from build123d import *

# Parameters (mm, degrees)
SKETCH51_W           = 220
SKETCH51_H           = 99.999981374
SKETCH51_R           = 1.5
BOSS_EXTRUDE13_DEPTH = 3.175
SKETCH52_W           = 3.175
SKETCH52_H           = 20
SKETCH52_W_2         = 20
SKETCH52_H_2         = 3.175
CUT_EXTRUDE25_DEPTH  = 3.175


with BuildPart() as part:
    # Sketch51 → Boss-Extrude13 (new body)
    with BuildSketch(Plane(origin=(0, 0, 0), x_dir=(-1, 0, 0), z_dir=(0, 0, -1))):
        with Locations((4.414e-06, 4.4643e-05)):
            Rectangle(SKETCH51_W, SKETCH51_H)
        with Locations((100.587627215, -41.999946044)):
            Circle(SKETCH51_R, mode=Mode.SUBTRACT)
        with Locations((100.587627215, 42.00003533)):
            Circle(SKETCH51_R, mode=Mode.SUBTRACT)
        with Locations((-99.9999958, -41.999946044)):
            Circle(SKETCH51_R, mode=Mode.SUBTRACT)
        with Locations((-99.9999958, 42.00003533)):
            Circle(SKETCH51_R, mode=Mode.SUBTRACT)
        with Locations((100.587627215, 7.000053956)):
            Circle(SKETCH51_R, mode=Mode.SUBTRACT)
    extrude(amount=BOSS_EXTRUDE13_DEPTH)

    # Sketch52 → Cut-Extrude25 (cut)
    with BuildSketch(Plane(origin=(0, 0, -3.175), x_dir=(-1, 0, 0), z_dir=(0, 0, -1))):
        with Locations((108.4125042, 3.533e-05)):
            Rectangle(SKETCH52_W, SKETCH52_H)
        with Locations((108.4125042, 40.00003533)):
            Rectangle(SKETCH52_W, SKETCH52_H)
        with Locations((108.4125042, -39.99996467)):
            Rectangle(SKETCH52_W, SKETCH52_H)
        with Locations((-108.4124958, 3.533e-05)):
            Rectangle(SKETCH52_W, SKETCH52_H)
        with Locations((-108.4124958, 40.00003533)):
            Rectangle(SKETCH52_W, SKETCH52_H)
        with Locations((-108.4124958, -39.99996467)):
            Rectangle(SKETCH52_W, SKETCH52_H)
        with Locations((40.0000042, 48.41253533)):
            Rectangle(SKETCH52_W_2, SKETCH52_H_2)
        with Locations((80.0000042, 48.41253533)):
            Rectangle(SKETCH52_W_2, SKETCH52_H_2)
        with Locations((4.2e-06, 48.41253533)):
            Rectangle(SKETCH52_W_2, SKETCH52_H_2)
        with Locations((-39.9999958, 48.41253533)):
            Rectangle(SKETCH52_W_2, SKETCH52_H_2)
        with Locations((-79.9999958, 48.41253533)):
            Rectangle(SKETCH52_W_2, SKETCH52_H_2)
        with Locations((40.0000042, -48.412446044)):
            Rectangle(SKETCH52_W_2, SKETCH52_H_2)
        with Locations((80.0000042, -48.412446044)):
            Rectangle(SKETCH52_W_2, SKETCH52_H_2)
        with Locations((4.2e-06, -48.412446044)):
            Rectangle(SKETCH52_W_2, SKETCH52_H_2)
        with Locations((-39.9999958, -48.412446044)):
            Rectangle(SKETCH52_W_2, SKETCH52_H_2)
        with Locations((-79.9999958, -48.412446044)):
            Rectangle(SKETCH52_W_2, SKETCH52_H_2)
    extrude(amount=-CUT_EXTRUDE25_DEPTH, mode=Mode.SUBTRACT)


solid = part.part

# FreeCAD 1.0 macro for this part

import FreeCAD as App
import Part
import Sketcher
from FreeCAD import Vector
Q = App.Units.Quantity

doc = App.newDocument("Part")
params = doc.addObject("Spreadsheet::Sheet", "Params")
for row, (alias, value) in enumerate([
    ("sketch1_diameter", "3 mm"),
    ("sketch1_width", "220 mm"),
    ("pad1_length", "3.175 mm"),
    ("sketch2_width", "20 mm"),
    ("pocket1_length", "3.175 mm"),
], start=1):
    params.set(f"A{row}", alias)
    params.set(f"B{row}", "=" + value)
    params.setAlias(f"B{row}", alias)

body = doc.addObject("PartDesign::Body", "Body")

# Sketch on XY plane
sketch1 = doc.addObject("Sketcher::SketchObject", "Sketch")
body.addObject(sketch1)
sketch1.AttachmentSupport = (doc.XY_Plane, [""])
sketch1.MapMode = "FlatFace"
sketch1.addGeometry([
    Part.LineSegment(Vector(110, 50, 0), Vector(110, -50, 0)),  # 0
    Part.LineSegment(Vector(110, -50, 0), Vector(-110, -50, 0)),  # 1
    Part.LineSegment(Vector(-110, -50, 0), Vector(-110, 50, 0)),  # 2
    Part.LineSegment(Vector(-110, 50, 0), Vector(110, 50, 0)),  # 3
    Part.Circle(Vector(100, -42, 0), Vector(0, 0, 1), 1.5),  # 4
    Part.Circle(Vector(-100.6, -42, 0), Vector(0, 0, 1), 1.5),  # 5
    Part.Circle(Vector(100, 42, 0), Vector(0, 0, 1), 1.5),  # 6
    Part.Circle(Vector(-100.6, 7, 0), Vector(0, 0, 1), 1.5),  # 7
    Part.Circle(Vector(-100.6, 42, 0), Vector(0, 0, 1), 1.5),  # 8
], False)
sketch1.addConstraint([
    Sketcher.Constraint("Coincident", 0, 2, 1, 1),
    Sketcher.Constraint("Coincident", 1, 2, 2, 1),
    Sketcher.Constraint("Coincident", 2, 2, 3, 1),
    Sketcher.Constraint("Coincident", 3, 2, 0, 1),
    Sketcher.Constraint("Vertical", 0),
    Sketcher.Constraint("Horizontal", 1),
    Sketcher.Constraint("Vertical", 2),
    Sketcher.Constraint("Horizontal", 3),
    Sketcher.Constraint("Equal", 4, 5),
    Sketcher.Constraint("Equal", 5, 6),
    Sketcher.Constraint("Equal", 6, 7),
    Sketcher.Constraint("Equal", 7, 8),
    Sketcher.Constraint("Horizontal", 4, 3, 5, 3),
    Sketcher.Constraint("Horizontal", 6, 3, 8, 3),
    Sketcher.Constraint("Vertical", 4, 3, 6, 3),
    Sketcher.Constraint("Vertical", 5, 3, 7, 3),
    Sketcher.Constraint("Vertical", 7, 3, 8, 3),
    Sketcher.Constraint("Diameter", 4, Q("3 mm")),
    Sketcher.Constraint("DistanceX", 1, 2, 1, 1, Q("220 mm")),
    Sketcher.Constraint("DistanceY", 5, 3, 7, 3, Q("49 mm")),
    Sketcher.Constraint("DistanceX", 4, 3, 0, 2, Q("10 mm")),
    Sketcher.Constraint("DistanceY", 0, 2, 4, 3, Q("8 mm")),
    Sketcher.Constraint("DistanceY", 8, 3, 2, 2, Q("8 mm")),
    Sketcher.Constraint("DistanceY", 0, 2, 0, 1, Q("99.999981 mm")),
    Sketcher.Constraint("DistanceX", -1, 1, 4, 3, Q("99.999996 mm")),
    Sketcher.Constraint("DistanceY", 4, 3, -1, 1, Q("41.999946 mm")),
    Sketcher.Constraint("DistanceX", 5, 3, -1, 1, Q("100.587627 mm")),
])
sketch1.setExpression("Constraints[17]", "Params.sketch1_diameter")
sketch1.setExpression("Constraints[18]", "Params.sketch1_width")
pad1 = doc.addObject("PartDesign::Pad", "Pad")
body.addObject(pad1)
pad1.Profile = sketch1
pad1.setExpression("Length", "Params.pad1_length")
pad1.Reversed = True

# Sketch on XY plane
sketch2 = doc.addObject("Sketcher::SketchObject", "Sketch001")
body.addObject(sketch2)
sketch2.AttachmentSupport = (doc.XY_Plane, [""])
sketch2.MapMode = "FlatFace"
sketch2.AttachmentOffset = App.Placement(Vector(0, 0, -3.175), App.Rotation())
sketch2.addGeometry([
    Part.LineSegment(Vector(-106.8, 10, 0), Vector(-106.8, -10, 0)),  # 0
    Part.LineSegment(Vector(-106.8, -10, 0), Vector(-110, -10, 0)),  # 1
    Part.LineSegment(Vector(-110, -10, 0), Vector(-110, 10, 0)),  # 2
    Part.LineSegment(Vector(-110, 10, 0), Vector(-106.8, 10, 0)),  # 3
    Part.LineSegment(Vector(-106.8, 50, 0), Vector(-106.8, 30, 0)),  # 4
    Part.LineSegment(Vector(-106.8, 30, 0), Vector(-110, 30, 0)),  # 5
    Part.LineSegment(Vector(-110, 30, 0), Vector(-110, 50, 0)),  # 6
    Part.LineSegment(Vector(-110, 50, 0), Vector(-106.8, 50, 0)),  # 7
    Part.LineSegment(Vector(-106.8, -30, 0), Vector(-106.8, -50, 0)),  # 8
    Part.LineSegment(Vector(-106.8, -50, 0), Vector(-110, -50, 0)),  # 9
    Part.LineSegment(Vector(-110, -50, 0), Vector(-110, -30, 0)),  # 10
    Part.LineSegment(Vector(-110, -30, 0), Vector(-106.8, -30, 0)),  # 11
    Part.LineSegment(Vector(110, 10, 0), Vector(110, -10, 0)),  # 12
    Part.LineSegment(Vector(110, -10, 0), Vector(106.8, -10, 0)),  # 13
    Part.LineSegment(Vector(106.8, -10, 0), Vector(106.8, 10, 0)),  # 14
    Part.LineSegment(Vector(106.8, 10, 0), Vector(110, 10, 0)),  # 15
    Part.LineSegment(Vector(110, 50, 0), Vector(110, 30, 0)),  # 16
    Part.LineSegment(Vector(110, 30, 0), Vector(106.8, 30, 0)),  # 17
    Part.LineSegment(Vector(106.8, 30, 0), Vector(106.8, 50, 0)),  # 18
    Part.LineSegment(Vector(106.8, 50, 0), Vector(110, 50, 0)),  # 19
    Part.LineSegment(Vector(110, -30, 0), Vector(110, -50, 0)),  # 20
    Part.LineSegment(Vector(110, -50, 0), Vector(106.8, -50, 0)),  # 21
    Part.LineSegment(Vector(106.8, -50, 0), Vector(106.8, -30, 0)),  # 22
    Part.LineSegment(Vector(106.8, -30, 0), Vector(110, -30, 0)),  # 23
    Part.LineSegment(Vector(-30, 50, 0), Vector(-30, 46.8, 0)),  # 24
    Part.LineSegment(Vector(-30, 46.8, 0), Vector(-50, 46.8, 0)),  # 25
    Part.LineSegment(Vector(-50, 46.8, 0), Vector(-50, 50, 0)),  # 26
    Part.LineSegment(Vector(-50, 50, 0), Vector(-30, 50, 0)),  # 27
    Part.LineSegment(Vector(-70, 50, 0), Vector(-70, 46.8, 0)),  # 28
    Part.LineSegment(Vector(-70, 46.8, 0), Vector(-90, 46.8, 0)),  # 29
    Part.LineSegment(Vector(-90, 46.8, 0), Vector(-90, 50, 0)),  # 30
    Part.LineSegment(Vector(-90, 50, 0), Vector(-70, 50, 0)),  # 31
    Part.LineSegment(Vector(10, 50, 0), Vector(10, 46.8, 0)),  # 32
    Part.LineSegment(Vector(10, 46.8, 0), Vector(-10, 46.8, 0)),  # 33
    Part.LineSegment(Vector(-10, 46.8, 0), Vector(-10, 50, 0)),  # 34
    Part.LineSegment(Vector(-10, 50, 0), Vector(10, 50, 0)),  # 35
    Part.LineSegment(Vector(50, 50, 0), Vector(50, 46.8, 0)),  # 36
    Part.LineSegment(Vector(50, 46.8, 0), Vector(30, 46.8, 0)),  # 37
    Part.LineSegment(Vector(30, 46.8, 0), Vector(30, 50, 0)),  # 38
    Part.LineSegment(Vector(30, 50, 0), Vector(50, 50, 0)),  # 39
    Part.LineSegment(Vector(90, 50, 0), Vector(90, 46.8, 0)),  # 40
    Part.LineSegment(Vector(90, 46.8, 0), Vector(70, 46.8, 0)),  # 41
    Part.LineSegment(Vector(70, 46.8, 0), Vector(70, 50, 0)),  # 42
    Part.LineSegment(Vector(70, 50, 0), Vector(90, 50, 0)),  # 43
    Part.LineSegment(Vector(-30, -46.8, 0), Vector(-30, -50, 0)),  # 44
    Part.LineSegment(Vector(-30, -50, 0), Vector(-50, -50, 0)),  # 45
    Part.LineSegment(Vector(-50, -50, 0), Vector(-50, -46.8, 0)),  # 46
    Part.LineSegment(Vector(-50, -46.8, 0), Vector(-30, -46.8, 0)),  # 47
    Part.LineSegment(Vector(-70, -46.8, 0), Vector(-70, -50, 0)),  # 48
    Part.LineSegment(Vector(-70, -50, 0), Vector(-90, -50, 0)),  # 49
    Part.LineSegment(Vector(-90, -50, 0), Vector(-90, -46.8, 0)),  # 50
    Part.LineSegment(Vector(-90, -46.8, 0), Vector(-70, -46.8, 0)),  # 51
    Part.LineSegment(Vector(10, -46.8, 0), Vector(10, -50, 0)),  # 52
    Part.LineSegment(Vector(10, -50, 0), Vector(-10, -50, 0)),  # 53
    Part.LineSegment(Vector(-10, -50, 0), Vector(-10, -46.8, 0)),  # 54
    Part.LineSegment(Vector(-10, -46.8, 0), Vector(10, -46.8, 0)),  # 55
    Part.LineSegment(Vector(50, -46.8, 0), Vector(50, -50, 0)),  # 56
    Part.LineSegment(Vector(50, -50, 0), Vector(30, -50, 0)),  # 57
    Part.LineSegment(Vector(30, -50, 0), Vector(30, -46.8, 0)),  # 58
    Part.LineSegment(Vector(30, -46.8, 0), Vector(50, -46.8, 0)),  # 59
    Part.LineSegment(Vector(90, -46.8, 0), Vector(90, -50, 0)),  # 60
    Part.LineSegment(Vector(90, -50, 0), Vector(70, -50, 0)),  # 61
    Part.LineSegment(Vector(70, -50, 0), Vector(70, -46.8, 0)),  # 62
    Part.LineSegment(Vector(70, -46.8, 0), Vector(90, -46.8, 0)),  # 63
], False)
sketch2.addConstraint([
    Sketcher.Constraint("Coincident", 0, 2, 1, 1),
    Sketcher.Constraint("Coincident", 1, 2, 2, 1),
    Sketcher.Constraint("Coincident", 2, 2, 3, 1),
    Sketcher.Constraint("Coincident", 3, 2, 0, 1),
    Sketcher.Constraint("Coincident", 4, 2, 5, 1),
    Sketcher.Constraint("Coincident", 5, 2, 6, 1),
    Sketcher.Constraint("Coincident", 6, 2, 7, 1),
    Sketcher.Constraint("Coincident", 7, 2, 4, 1),
    Sketcher.Constraint("Coincident", 8, 2, 9, 1),
    Sketcher.Constraint("Coincident", 9, 2, 10, 1),
    Sketcher.Constraint("Coincident", 10, 2, 11, 1),
    Sketcher.Constraint("Coincident", 11, 2, 8, 1),
    Sketcher.Constraint("Coincident", 12, 2, 13, 1),
    Sketcher.Constraint("Coincident", 13, 2, 14, 1),
    Sketcher.Constraint("Coincident", 14, 2, 15, 1),
    Sketcher.Constraint("Coincident", 15, 2, 12, 1),
    Sketcher.Constraint("Coincident", 16, 2, 17, 1),
    Sketcher.Constraint("Coincident", 17, 2, 18, 1),
    Sketcher.Constraint("Coincident", 18, 2, 19, 1),
    Sketcher.Constraint("Coincident", 19, 2, 16, 1),
    Sketcher.Constraint("Coincident", 20, 2, 21, 1),
    Sketcher.Constraint("Coincident", 21, 2, 22, 1),
    Sketcher.Constraint("Coincident", 22, 2, 23, 1),
    Sketcher.Constraint("Coincident", 23, 2, 20, 1),
    Sketcher.Constraint("Coincident", 24, 2, 25, 1),
    Sketcher.Constraint("Coincident", 25, 2, 26, 1),
    Sketcher.Constraint("Coincident", 26, 2, 27, 1),
    Sketcher.Constraint("Coincident", 27, 2, 24, 1),
    Sketcher.Constraint("Coincident", 28, 2, 29, 1),
    Sketcher.Constraint("Coincident", 29, 2, 30, 1),
    Sketcher.Constraint("Coincident", 30, 2, 31, 1),
    Sketcher.Constraint("Coincident", 31, 2, 28, 1),
    Sketcher.Constraint("Coincident", 32, 2, 33, 1),
    Sketcher.Constraint("Coincident", 33, 2, 34, 1),
    Sketcher.Constraint("Coincident", 34, 2, 35, 1),
    Sketcher.Constraint("Coincident", 35, 2, 32, 1),
    Sketcher.Constraint("Coincident", 36, 2, 37, 1),
    Sketcher.Constraint("Coincident", 37, 2, 38, 1),
    Sketcher.Constraint("Coincident", 38, 2, 39, 1),
    Sketcher.Constraint("Coincident", 39, 2, 36, 1),
    Sketcher.Constraint("Coincident", 40, 2, 41, 1),
    Sketcher.Constraint("Coincident", 41, 2, 42, 1),
    Sketcher.Constraint("Coincident", 42, 2, 43, 1),
    Sketcher.Constraint("Coincident", 43, 2, 40, 1),
    Sketcher.Constraint("Coincident", 44, 2, 45, 1),
    Sketcher.Constraint("Coincident", 45, 2, 46, 1),
    Sketcher.Constraint("Coincident", 46, 2, 47, 1),
    Sketcher.Constraint("Coincident", 47, 2, 44, 1),
    Sketcher.Constraint("Coincident", 48, 2, 49, 1),
    Sketcher.Constraint("Coincident", 49, 2, 50, 1),
    Sketcher.Constraint("Coincident", 50, 2, 51, 1),
    Sketcher.Constraint("Coincident", 51, 2, 48, 1),
    Sketcher.Constraint("Coincident", 52, 2, 53, 1),
    Sketcher.Constraint("Coincident", 53, 2, 54, 1),
    Sketcher.Constraint("Coincident", 54, 2, 55, 1),
    Sketcher.Constraint("Coincident", 55, 2, 52, 1),
    Sketcher.Constraint("Coincident", 56, 2, 57, 1),
    Sketcher.Constraint("Coincident", 57, 2, 58, 1),
    Sketcher.Constraint("Coincident", 58, 2, 59, 1),
    Sketcher.Constraint("Coincident", 59, 2, 56, 1),
    Sketcher.Constraint("Coincident", 60, 2, 61, 1),
    Sketcher.Constraint("Coincident", 61, 2, 62, 1),
    Sketcher.Constraint("Coincident", 62, 2, 63, 1),
    Sketcher.Constraint("Coincident", 63, 2, 60, 1),
    Sketcher.Constraint("Vertical", 0),
    Sketcher.Constraint("Horizontal", 1),
    Sketcher.Constraint("Vertical", 2),
    Sketcher.Constraint("Horizontal", 3),
    Sketcher.Constraint("Vertical", 4),
    Sketcher.Constraint("Horizontal", 5),
    Sketcher.Constraint("Vertical", 6),
    Sketcher.Constraint("Horizontal", 7),
    Sketcher.Constraint("Vertical", 8),
    Sketcher.Constraint("Horizontal", 9),
    Sketcher.Constraint("Vertical", 10),
    Sketcher.Constraint("Horizontal", 11),
    Sketcher.Constraint("Vertical", 12),
    Sketcher.Constraint("Horizontal", 13),
    Sketcher.Constraint("Vertical", 14),
    Sketcher.Constraint("Horizontal", 15),
    Sketcher.Constraint("Vertical", 16),
    Sketcher.Constraint("Horizontal", 17),
    Sketcher.Constraint("Vertical", 18),
    Sketcher.Constraint("Horizontal", 19),
    Sketcher.Constraint("Vertical", 20),
    Sketcher.Constraint("Horizontal", 21),
    Sketcher.Constraint("Vertical", 22),
    Sketcher.Constraint("Horizontal", 23),
    Sketcher.Constraint("Vertical", 24),
    Sketcher.Constraint("Horizontal", 25),
    Sketcher.Constraint("Vertical", 26),
    Sketcher.Constraint("Horizontal", 27),
    Sketcher.Constraint("Vertical", 28),
    Sketcher.Constraint("Horizontal", 29),
    Sketcher.Constraint("Vertical", 30),
    Sketcher.Constraint("Horizontal", 31),
    Sketcher.Constraint("Vertical", 32),
    Sketcher.Constraint("Horizontal", 33),
    Sketcher.Constraint("Vertical", 34),
    Sketcher.Constraint("Horizontal", 35),
    Sketcher.Constraint("Vertical", 36),
    Sketcher.Constraint("Horizontal", 37),
    Sketcher.Constraint("Vertical", 38),
    Sketcher.Constraint("Horizontal", 39),
    Sketcher.Constraint("Vertical", 40),
    Sketcher.Constraint("Horizontal", 41),
    Sketcher.Constraint("Vertical", 42),
    Sketcher.Constraint("Horizontal", 43),
    Sketcher.Constraint("Vertical", 44),
    Sketcher.Constraint("Horizontal", 45),
    Sketcher.Constraint("Vertical", 46),
    Sketcher.Constraint("Horizontal", 47),
    Sketcher.Constraint("Vertical", 48),
    Sketcher.Constraint("Horizontal", 49),
    Sketcher.Constraint("Vertical", 50),
    Sketcher.Constraint("Horizontal", 51),
    Sketcher.Constraint("Vertical", 52),
    Sketcher.Constraint("Horizontal", 53),
    Sketcher.Constraint("Vertical", 54),
    Sketcher.Constraint("Horizontal", 55),
    Sketcher.Constraint("Vertical", 56),
    Sketcher.Constraint("Horizontal", 57),
    Sketcher.Constraint("Vertical", 58),
    Sketcher.Constraint("Horizontal", 59),
    Sketcher.Constraint("Vertical", 60),
    Sketcher.Constraint("Horizontal", 61),
    Sketcher.Constraint("Vertical", 62),
    Sketcher.Constraint("Horizontal", 63),
    Sketcher.Constraint("Symmetric", 1, 2, 12, 2, -2),
    Sketcher.Constraint("Symmetric", 3, 2, 14, 2, -2),
    Sketcher.Constraint("Symmetric", 5, 2, 16, 2, -2),
    Sketcher.Constraint("Symmetric", 7, 2, 18, 2, -2),
    Sketcher.Constraint("Symmetric", 9, 2, 20, 2, -2),
    Sketcher.Constraint("Symmetric", 11, 2, 22, 2, -2),
    Sketcher.Constraint("Symmetric", 25, 2, 36, 2, -2),
    Sketcher.Constraint("Symmetric", 27, 2, 38, 2, -2),
    Sketcher.Constraint("Symmetric", 29, 2, 40, 2, -2),
    Sketcher.Constraint("Symmetric", 31, 2, 42, 2, -2),
    Sketcher.Constraint("Symmetric", 45, 2, 56, 2, -2),
    Sketcher.Constraint("Symmetric", 47, 2, 58, 2, -2),
    Sketcher.Constraint("Symmetric", 49, 2, 60, 2, -2),
    Sketcher.Constraint("Symmetric", 51, 2, 62, 2, -2),
    Sketcher.Constraint("Horizontal", 19, 2, 26, 2),
    Sketcher.Constraint("Horizontal", 25, 2, 28, 2),
    Sketcher.Constraint("Horizontal", 27, 2, 30, 2),
    Sketcher.Constraint("Horizontal", 29, 2, 32, 2),
    Sketcher.Constraint("Horizontal", 31, 2, 34, 2),
    Sketcher.Constraint("Horizontal", 45, 2, 48, 2),
    Sketcher.Constraint("Horizontal", 47, 2, 50, 2),
    Sketcher.Constraint("Horizontal", 49, 2, 52, 2),
    Sketcher.Constraint("Horizontal", 51, 2, 54, 2),
    Sketcher.Constraint("Vertical", 3, 2, 4, 2),
    Sketcher.Constraint("Vertical", 2, 2, 5, 2),
    Sketcher.Constraint("Vertical", 7, 2, 8, 2),
    Sketcher.Constraint("Vertical", 6, 2, 9, 2),
    Sketcher.Constraint("Vertical", 27, 2, 44, 2),
    Sketcher.Constraint("Vertical", 26, 2, 45, 2),
    Sketcher.Constraint("Vertical", 31, 2, 48, 2),
    Sketcher.Constraint("Vertical", 30, 2, 49, 2),
    Sketcher.Constraint("Vertical", 35, 2, 52, 2),
    Sketcher.Constraint("Vertical", 34, 2, 53, 2),
    Sketcher.Constraint("Equal", 27, 29),
    Sketcher.Constraint("Equal", 31, 33),
    Sketcher.Constraint("Equal", 63, 0),
    Sketcher.Constraint("Equal", 2, 4),
    Sketcher.Constraint("Equal", 6, 8),
    Sketcher.Constraint("Equal", 23, 24),
    Sketcher.Constraint("Equal", 42, 44),
    Sketcher.Constraint("DistanceX", 25, 2, 25, 1, Q("20 mm")),
    Sketcher.Constraint("DistanceX", 1, 2, 1, 1, Q("3.175 mm")),
    Sketcher.Constraint("DistanceX", 0, 2, -1, 1, Q("106.825004 mm")),
    Sketcher.Constraint("DistanceY", 0, 2, -1, 1, Q("9.999965 mm")),
    Sketcher.Constraint("DistanceY", -1, 1, 4, 2, Q("30.000035 mm")),
    Sketcher.Constraint("DistanceY", 8, 2, -1, 1, Q("49.999965 mm")),
    Sketcher.Constraint("DistanceX", 24, 2, -1, 1, Q("30.000004 mm")),
    Sketcher.Constraint("DistanceX", 28, 2, -1, 1, Q("70.000004 mm")),
    Sketcher.Constraint("DistanceX", -1, 1, 32, 2, Q("9.999996 mm")),
    Sketcher.Constraint("DistanceY", 44, 2, -1, 1, Q("49.999946 mm")),
])
sketch2.setExpression("Constraints[168]", "Params.sketch2_width")
pocket1 = doc.addObject("PartDesign::Pocket", "Pocket")
body.addObject(pocket1)
pocket1.Profile = sketch2
pocket1.setExpression("Length", "Params.pocket1_length")
pocket1.Reversed = True

doc.recompute()
